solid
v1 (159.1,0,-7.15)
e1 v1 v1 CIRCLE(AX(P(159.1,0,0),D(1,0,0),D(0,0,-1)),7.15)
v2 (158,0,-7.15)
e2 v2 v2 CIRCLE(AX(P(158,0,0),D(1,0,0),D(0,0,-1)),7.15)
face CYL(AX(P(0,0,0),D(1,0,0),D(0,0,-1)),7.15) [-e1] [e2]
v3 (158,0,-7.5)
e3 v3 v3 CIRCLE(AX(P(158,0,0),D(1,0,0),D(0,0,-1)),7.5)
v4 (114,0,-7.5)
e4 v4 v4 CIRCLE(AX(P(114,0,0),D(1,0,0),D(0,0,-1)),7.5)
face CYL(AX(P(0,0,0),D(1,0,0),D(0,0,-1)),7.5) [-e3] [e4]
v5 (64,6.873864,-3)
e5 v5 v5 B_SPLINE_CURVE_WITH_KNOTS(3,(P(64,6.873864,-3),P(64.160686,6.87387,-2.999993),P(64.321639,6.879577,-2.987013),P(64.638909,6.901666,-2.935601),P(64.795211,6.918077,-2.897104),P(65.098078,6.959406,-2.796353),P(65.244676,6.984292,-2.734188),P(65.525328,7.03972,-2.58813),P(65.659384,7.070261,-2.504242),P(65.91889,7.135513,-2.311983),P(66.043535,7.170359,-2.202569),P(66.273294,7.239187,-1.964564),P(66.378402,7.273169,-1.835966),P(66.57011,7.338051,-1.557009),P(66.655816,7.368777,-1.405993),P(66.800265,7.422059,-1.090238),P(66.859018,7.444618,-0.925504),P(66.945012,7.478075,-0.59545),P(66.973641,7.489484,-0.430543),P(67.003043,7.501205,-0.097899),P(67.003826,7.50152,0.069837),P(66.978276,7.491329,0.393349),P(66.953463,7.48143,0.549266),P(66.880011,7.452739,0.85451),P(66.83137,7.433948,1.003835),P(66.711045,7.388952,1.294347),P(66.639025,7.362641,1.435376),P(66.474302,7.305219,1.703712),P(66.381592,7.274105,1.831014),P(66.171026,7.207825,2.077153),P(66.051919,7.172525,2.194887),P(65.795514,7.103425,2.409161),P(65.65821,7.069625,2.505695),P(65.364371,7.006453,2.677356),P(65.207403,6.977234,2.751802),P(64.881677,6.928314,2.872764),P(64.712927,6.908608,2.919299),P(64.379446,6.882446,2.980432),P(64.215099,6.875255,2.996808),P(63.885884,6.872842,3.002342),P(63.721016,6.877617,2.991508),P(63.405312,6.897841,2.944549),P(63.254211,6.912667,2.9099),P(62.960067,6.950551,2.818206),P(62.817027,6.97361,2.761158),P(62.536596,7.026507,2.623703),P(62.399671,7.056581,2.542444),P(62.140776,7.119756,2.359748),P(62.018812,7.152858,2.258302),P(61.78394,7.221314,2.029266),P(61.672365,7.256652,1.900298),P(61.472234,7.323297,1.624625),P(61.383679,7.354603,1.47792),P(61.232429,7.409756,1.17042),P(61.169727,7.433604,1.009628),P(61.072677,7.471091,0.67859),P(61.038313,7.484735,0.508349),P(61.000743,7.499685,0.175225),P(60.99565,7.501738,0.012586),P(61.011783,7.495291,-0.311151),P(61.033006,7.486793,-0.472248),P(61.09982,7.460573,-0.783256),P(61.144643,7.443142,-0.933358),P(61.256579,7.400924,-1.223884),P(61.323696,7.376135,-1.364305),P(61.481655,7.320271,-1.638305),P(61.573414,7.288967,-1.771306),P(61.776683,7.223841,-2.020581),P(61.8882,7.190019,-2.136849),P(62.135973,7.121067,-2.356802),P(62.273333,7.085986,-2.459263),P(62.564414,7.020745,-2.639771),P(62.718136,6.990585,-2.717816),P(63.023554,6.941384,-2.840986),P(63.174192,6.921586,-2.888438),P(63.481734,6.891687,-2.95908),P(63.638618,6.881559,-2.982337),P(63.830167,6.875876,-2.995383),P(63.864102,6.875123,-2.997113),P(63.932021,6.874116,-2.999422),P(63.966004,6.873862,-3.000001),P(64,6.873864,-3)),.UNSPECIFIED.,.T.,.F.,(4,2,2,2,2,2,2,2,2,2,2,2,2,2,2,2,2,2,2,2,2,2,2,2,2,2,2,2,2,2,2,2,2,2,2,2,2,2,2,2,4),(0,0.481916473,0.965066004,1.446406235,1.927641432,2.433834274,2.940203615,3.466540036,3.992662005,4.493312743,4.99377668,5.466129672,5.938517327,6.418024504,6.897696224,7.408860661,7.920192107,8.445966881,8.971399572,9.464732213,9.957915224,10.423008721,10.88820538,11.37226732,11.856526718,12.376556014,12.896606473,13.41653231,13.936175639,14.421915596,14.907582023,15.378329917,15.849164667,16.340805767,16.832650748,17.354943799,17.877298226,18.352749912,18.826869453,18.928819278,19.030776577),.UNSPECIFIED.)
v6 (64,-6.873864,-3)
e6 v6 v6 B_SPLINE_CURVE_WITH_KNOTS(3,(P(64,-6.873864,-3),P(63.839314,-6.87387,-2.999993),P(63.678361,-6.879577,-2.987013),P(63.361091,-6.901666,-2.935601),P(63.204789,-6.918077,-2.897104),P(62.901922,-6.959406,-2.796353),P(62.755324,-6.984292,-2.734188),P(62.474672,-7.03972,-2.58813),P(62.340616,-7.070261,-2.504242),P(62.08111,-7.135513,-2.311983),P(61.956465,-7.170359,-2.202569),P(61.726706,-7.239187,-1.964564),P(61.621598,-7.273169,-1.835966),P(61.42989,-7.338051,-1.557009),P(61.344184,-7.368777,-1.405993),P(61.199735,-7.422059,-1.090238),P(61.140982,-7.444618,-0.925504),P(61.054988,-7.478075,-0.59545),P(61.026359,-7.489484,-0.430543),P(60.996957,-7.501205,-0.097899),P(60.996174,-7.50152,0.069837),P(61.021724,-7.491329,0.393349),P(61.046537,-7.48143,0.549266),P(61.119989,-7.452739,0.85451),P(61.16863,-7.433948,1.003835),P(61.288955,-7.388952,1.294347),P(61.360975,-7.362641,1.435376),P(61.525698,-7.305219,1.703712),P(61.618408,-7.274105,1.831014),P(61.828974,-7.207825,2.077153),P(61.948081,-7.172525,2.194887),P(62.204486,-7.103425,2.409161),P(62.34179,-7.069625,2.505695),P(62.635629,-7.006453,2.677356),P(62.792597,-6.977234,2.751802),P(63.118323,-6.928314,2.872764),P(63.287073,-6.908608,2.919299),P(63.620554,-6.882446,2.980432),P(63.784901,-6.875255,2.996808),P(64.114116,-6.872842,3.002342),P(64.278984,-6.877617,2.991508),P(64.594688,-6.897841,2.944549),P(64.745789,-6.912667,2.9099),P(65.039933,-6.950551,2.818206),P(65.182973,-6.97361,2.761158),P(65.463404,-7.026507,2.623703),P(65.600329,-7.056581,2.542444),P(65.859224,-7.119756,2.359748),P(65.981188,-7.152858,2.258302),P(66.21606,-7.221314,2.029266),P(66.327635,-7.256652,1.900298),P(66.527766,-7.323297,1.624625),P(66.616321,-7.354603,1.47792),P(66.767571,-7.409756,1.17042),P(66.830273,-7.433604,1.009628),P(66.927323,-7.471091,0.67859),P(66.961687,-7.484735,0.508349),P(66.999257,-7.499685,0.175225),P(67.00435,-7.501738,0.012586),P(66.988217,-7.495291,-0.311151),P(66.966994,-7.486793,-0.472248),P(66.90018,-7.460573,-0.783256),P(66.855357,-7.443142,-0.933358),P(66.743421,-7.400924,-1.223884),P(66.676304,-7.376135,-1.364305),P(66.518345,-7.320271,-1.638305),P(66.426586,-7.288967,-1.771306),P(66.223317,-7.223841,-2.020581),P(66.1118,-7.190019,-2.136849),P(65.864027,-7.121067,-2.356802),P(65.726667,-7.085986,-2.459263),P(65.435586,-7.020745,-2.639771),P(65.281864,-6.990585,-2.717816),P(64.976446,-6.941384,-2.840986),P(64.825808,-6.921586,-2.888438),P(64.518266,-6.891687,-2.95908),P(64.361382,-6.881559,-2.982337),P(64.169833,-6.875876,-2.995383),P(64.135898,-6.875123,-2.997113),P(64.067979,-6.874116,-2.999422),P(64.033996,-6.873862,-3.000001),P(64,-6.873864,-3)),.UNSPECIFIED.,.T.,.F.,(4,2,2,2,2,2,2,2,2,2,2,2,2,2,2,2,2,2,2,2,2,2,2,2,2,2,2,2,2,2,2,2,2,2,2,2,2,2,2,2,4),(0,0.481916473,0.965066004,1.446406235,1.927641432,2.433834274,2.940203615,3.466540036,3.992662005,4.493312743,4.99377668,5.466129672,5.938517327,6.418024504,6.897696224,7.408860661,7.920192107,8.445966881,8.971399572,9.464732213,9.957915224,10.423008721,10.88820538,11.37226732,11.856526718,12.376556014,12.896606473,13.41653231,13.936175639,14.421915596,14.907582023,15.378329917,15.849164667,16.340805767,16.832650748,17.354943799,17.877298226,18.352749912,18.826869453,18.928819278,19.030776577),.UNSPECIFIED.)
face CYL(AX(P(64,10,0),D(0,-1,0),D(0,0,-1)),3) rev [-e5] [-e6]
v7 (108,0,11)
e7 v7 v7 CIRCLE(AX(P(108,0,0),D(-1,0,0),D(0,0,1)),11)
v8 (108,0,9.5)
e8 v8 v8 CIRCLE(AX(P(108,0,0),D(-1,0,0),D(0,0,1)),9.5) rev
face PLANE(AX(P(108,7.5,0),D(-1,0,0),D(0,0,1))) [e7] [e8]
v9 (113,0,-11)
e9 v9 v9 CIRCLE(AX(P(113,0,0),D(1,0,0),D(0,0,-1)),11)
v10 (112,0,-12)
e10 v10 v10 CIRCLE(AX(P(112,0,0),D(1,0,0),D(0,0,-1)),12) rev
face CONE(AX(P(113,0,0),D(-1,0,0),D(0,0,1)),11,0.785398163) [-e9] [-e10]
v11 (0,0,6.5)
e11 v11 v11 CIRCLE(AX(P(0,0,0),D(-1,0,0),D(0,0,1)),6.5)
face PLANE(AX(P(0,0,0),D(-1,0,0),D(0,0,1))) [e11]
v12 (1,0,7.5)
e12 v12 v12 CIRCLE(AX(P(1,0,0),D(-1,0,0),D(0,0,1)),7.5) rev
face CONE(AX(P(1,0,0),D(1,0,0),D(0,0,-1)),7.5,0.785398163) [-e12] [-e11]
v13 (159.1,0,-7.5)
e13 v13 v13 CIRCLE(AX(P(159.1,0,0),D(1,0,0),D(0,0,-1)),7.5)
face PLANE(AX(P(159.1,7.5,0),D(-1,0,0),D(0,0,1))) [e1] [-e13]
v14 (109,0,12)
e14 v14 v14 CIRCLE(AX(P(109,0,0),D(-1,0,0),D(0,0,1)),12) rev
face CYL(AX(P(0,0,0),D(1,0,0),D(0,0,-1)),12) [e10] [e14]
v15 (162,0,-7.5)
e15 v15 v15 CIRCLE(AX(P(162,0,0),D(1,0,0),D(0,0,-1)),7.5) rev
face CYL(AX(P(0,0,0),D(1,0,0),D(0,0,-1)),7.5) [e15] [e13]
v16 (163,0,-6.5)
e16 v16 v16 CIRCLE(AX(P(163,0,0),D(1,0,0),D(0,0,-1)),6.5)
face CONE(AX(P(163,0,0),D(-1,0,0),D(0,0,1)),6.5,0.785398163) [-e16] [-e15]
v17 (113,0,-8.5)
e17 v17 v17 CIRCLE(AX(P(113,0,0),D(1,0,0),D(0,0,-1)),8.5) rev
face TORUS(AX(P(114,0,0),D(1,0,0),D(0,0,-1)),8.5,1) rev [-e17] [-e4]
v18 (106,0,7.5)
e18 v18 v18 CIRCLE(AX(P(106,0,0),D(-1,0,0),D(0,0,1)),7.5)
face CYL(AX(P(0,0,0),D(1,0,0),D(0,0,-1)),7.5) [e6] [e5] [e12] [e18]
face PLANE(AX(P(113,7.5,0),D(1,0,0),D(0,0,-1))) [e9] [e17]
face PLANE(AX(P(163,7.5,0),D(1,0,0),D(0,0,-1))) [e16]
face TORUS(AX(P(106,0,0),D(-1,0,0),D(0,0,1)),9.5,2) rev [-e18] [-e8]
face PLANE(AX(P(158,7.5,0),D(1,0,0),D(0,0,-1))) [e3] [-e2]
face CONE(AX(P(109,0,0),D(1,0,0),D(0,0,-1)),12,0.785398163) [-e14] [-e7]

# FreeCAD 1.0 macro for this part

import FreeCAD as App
import Part
import Sketcher
from FreeCAD import Vector


def edges_at(feature, points):
    """Names of the edges that pass closest to the given points."""
    edges = feature.Shape.Edges
    near = lambda p: min(range(len(edges)), key=lambda i: edges[i].distToShape(Part.Vertex(*p))[0])
    return sorted({f"Edge{near(p) + 1}" for p in points})

doc = App.newDocument("Part")
body = doc.addObject("PartDesign::Body", "Body")

# Sketch on XY plane
sketch1 = doc.addObject("Sketcher::SketchObject", "Sketch")
body.addObject(sketch1)
sketch1.AttachmentSupport = (doc.XY_Plane, [""])
sketch1.MapMode = "FlatFace"
sketch1.addGeometry([
    Part.LineSegment(Vector(0, 7.5, 0), Vector(0, 0, 0)),  # 0
    Part.LineSegment(Vector(0, 0, 0), Vector(163, 0, 0)),  # 1
    Part.LineSegment(Vector(163, 0, 0), Vector(163, 7.5, 0)),  # 2
    Part.LineSegment(Vector(163, 7.5, 0), Vector(159.1, 7.5, 0)),  # 3
    Part.LineSegment(Vector(159.1, 7.5, 0), Vector(159.1, 7.15, 0)),  # 4
    Part.LineSegment(Vector(159.1, 7.15, 0), Vector(158, 7.15, 0)),  # 5
    Part.LineSegment(Vector(158, 7.15, 0), Vector(158, 7.5, 0)),  # 6
    Part.LineSegment(Vector(158, 7.5, 0), Vector(113, 7.5, 0)),  # 7
    Part.LineSegment(Vector(113, 7.5, 0), Vector(113, 12, 0)),  # 8
    Part.LineSegment(Vector(113, 12, 0), Vector(108, 12, 0)),  # 9
    Part.LineSegment(Vector(108, 12, 0), Vector(108, 7.5, 0)),  # 10
    Part.LineSegment(Vector(108, 7.5, 0), Vector(0, 7.5, 0)),  # 11
], False)
sketch1.addConstraint([
    Sketcher.Constraint("Coincident", 0, 2, 1, 1),
    Sketcher.Constraint("Coincident", 1, 2, 2, 1),
    Sketcher.Constraint("Coincident", 2, 2, 3, 1),
    Sketcher.Constraint("Coincident", 3, 2, 4, 1),
    Sketcher.Constraint("Coincident", 4, 2, 5, 1),
    Sketcher.Constraint("Coincident", 5, 2, 6, 1),
    Sketcher.Constraint("Coincident", 6, 2, 7, 1),
    Sketcher.Constraint("Coincident", 7, 2, 8, 1),
    Sketcher.Constraint("Coincident", 8, 2, 9, 1),
    Sketcher.Constraint("Coincident", 9, 2, 10, 1),
    Sketcher.Constraint("Coincident", 10, 2, 11, 1),
    Sketcher.Constraint("Coincident", 11, 2, 0, 1),
    Sketcher.Constraint("Vertical", 0),
    Sketcher.Constraint("Horizontal", 1),
    Sketcher.Constraint("Vertical", 2),
    Sketcher.Constraint("Horizontal", 3),
    Sketcher.Constraint("Vertical", 4),
    Sketcher.Constraint("Horizontal", 5),
    Sketcher.Constraint("Vertical", 6),
    Sketcher.Constraint("Horizontal", 7),
    Sketcher.Constraint("Vertical", 8),
    Sketcher.Constraint("Horizontal", 9),
    Sketcher.Constraint("Vertical", 10),
    Sketcher.Constraint("Horizontal", 11),
    Sketcher.Constraint("Coincident", 0, 2, -1, 1),
    Sketcher.Constraint("Horizontal", 3, 2, 6, 2),
    Sketcher.Constraint("Horizontal", 7, 2, 10, 2),
    Sketcher.Constraint("DistanceX", 1, 1, 1, 2, 163.0),
    Sketcher.Constraint("DistanceX", 7, 2, 7, 1, 45.0),
    Sketcher.Constraint("DistanceX", 9, 2, 9, 1, 5.0),
    Sketcher.Constraint("DistanceX", 11, 2, 11, 1, 108.0),
    Sketcher.Constraint("DistanceX", 3, 2, 3, 1, 3.9),
    Sketcher.Constraint("DistanceY", 0, 2, 0, 1, 7.5),
    Sketcher.Constraint("DistanceY", 8, 1, 8, 2, 4.5),
    Sketcher.Constraint("DistanceY", 4, 2, 4, 1, 0.35),
])
revolution = doc.addObject("PartDesign::Revolution", "Revolution")
body.addObject(revolution)
revolution.Profile = sketch1
revolution.ReferenceAxis = (sketch1, ["H_Axis"])
revolution.Angle = 360

# Sketch on XZ plane
sketch2 = doc.addObject("Sketcher::SketchObject", "Sketch001")
body.addObject(sketch2)
sketch2.AttachmentSupport = (doc.XZ_Plane, [""])
sketch2.MapMode = "FlatFace"
sketch2.addGeometry(Part.Circle(Vector(64, 0, 0), Vector(0, 0, 1), 3), False)
sketch2.addConstraint([
    Sketcher.Constraint("PointOnObject", 0, 3, -1),
    Sketcher.Constraint("Diameter", 0, 6.0),
    Sketcher.Constraint("DistanceX", -1, 1, 0, 3, 64.0),
])
pocket1 = doc.addObject("PartDesign::Pocket", "Pocket")
body.addObject(pocket1)
pocket1.Profile = sketch2
pocket1.Type = "ThroughAll"
pocket1.Midplane = True
doc.recompute()

chamfer = doc.addObject("PartDesign::Chamfer", "Chamfer")
body.addObject(chamfer)
chamfer.Base = (pocket1, edges_at(pocket1, [
    (113, -12, 0),
    (108, -12, 0),
    (0, -7.5, 0),
    (163, -7.5, 0),
]))
chamfer.Size = 1
doc.recompute()

fillet = doc.addObject("PartDesign::Fillet", "Fillet")
body.addObject(fillet)
fillet.Base = (chamfer, edges_at(chamfer, [(108, -7.5, 0)]))
fillet.Radius = 2
doc.recompute()

fillet2 = doc.addObject("PartDesign::Fillet", "Fillet001")
body.addObject(fillet2)
fillet2.Base = (fillet, edges_at(fillet, [(113, -7.5, 0)]))
fillet2.Radius = 1

doc.recompute()
